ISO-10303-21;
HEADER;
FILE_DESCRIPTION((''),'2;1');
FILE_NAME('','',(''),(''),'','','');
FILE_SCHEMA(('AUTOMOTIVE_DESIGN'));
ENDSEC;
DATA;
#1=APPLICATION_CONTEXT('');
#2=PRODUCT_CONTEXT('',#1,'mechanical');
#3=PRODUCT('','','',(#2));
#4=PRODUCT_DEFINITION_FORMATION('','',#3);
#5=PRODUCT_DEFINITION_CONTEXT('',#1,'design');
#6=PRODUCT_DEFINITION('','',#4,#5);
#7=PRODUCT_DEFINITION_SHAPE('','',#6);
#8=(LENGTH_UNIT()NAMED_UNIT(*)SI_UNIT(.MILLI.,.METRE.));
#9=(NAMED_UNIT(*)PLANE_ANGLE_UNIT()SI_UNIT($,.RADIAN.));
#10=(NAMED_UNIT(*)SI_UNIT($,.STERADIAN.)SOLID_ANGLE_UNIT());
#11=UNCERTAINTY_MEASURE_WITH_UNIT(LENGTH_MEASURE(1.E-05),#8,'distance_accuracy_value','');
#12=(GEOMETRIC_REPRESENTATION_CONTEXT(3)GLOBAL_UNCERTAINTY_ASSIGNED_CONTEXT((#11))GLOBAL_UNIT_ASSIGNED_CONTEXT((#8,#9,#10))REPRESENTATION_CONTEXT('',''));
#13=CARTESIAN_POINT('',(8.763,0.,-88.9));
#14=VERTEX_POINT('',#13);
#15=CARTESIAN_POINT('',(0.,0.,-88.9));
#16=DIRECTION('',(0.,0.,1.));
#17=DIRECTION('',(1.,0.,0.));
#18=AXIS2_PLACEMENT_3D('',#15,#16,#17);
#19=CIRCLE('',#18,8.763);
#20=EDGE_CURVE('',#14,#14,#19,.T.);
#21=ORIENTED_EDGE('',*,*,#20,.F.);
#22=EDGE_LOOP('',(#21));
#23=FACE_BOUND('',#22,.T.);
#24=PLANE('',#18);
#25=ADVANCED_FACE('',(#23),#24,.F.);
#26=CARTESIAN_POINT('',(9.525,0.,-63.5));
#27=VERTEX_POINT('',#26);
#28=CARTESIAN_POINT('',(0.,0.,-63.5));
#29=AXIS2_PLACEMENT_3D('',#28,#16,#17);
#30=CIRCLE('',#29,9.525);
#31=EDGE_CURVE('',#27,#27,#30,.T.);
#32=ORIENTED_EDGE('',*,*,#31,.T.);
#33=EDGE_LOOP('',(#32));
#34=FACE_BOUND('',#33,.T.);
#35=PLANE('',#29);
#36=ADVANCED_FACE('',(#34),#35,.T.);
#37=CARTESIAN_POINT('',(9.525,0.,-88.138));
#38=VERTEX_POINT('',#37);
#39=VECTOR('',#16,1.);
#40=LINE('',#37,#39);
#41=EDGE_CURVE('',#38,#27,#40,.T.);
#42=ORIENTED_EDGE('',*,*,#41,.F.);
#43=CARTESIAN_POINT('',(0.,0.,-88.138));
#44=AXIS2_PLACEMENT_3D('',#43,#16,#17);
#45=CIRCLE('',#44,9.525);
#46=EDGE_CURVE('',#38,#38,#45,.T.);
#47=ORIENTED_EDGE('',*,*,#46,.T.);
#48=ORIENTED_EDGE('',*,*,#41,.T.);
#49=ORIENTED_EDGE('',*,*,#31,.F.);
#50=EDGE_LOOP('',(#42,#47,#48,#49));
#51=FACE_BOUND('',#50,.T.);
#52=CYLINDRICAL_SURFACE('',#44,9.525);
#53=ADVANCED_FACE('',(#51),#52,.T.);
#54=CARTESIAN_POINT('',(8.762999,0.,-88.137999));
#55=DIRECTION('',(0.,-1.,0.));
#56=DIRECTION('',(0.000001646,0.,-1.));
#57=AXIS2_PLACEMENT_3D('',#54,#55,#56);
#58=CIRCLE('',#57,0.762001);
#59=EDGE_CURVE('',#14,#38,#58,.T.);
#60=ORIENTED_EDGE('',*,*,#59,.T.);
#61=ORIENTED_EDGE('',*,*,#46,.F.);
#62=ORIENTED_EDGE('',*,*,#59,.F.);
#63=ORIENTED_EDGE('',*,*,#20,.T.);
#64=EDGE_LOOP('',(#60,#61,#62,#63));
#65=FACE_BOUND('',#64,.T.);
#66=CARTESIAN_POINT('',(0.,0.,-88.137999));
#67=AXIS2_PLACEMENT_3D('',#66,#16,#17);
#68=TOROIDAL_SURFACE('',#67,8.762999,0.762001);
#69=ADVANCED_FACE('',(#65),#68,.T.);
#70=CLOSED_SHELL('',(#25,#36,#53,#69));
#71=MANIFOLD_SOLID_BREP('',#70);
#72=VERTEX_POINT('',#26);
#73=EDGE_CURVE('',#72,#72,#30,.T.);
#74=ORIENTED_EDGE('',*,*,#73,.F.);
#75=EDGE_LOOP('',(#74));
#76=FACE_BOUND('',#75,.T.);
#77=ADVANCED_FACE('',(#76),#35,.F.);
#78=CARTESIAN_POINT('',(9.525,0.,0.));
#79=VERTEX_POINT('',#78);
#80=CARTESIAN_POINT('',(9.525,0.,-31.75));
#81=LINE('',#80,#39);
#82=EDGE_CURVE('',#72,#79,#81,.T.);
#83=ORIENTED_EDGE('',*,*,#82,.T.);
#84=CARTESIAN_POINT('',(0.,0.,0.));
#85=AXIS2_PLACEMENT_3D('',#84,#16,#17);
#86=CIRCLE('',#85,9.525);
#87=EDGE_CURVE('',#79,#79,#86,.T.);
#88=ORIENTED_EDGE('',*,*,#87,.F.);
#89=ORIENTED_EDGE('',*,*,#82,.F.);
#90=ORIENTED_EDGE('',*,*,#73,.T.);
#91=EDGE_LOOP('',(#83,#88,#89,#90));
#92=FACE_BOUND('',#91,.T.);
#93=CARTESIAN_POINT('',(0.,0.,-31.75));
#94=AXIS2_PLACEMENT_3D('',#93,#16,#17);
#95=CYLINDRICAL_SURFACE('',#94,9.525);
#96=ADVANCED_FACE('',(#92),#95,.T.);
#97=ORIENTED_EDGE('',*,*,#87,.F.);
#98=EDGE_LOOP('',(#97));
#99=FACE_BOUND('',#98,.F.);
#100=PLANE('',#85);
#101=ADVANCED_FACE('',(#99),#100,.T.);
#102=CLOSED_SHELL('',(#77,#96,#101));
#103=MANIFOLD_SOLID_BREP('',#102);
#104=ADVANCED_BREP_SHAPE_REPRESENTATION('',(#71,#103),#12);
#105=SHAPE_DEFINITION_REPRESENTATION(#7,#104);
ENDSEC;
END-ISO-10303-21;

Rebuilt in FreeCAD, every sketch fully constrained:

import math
import FreeCAD as App
import Part
import Sketcher
Q = App.Units.Quantity


def add_polygon(sketch, points):
    """Adds a closed chain of lines whose ends are joined by coincident constraints."""
    first, n = sketch.GeometryCount, len(points)
    for a, b in zip(points, points[1:] + points[:1]):
        sketch.addGeometry(Part.LineSegment(App.Vector(*a, 0), App.Vector(*b, 0)), False)
    for i in range(n):
        sketch.addConstraint(Sketcher.Constraint("Coincident", first + i, 2, first + (i + 1) % n, 1))

doc = App.newDocument("Part")
body = doc.addObject("PartDesign::Body", "Body")

sketch1 = body.newObject("Sketcher::SketchObject", "Sketch")
sketch1.AttachmentSupport = (doc.getObject("XZ_Plane"), [""])
sketch1.MapMode = "FlatFace"
add_polygon(sketch1, [(0, 0), (0, -63.5), (9.525, -63.5), (9.525, 0)])
sketch1.addConstraint(Sketcher.Constraint("Vertical", 0))
sketch1.addConstraint(Sketcher.Constraint("Horizontal", 1))
sketch1.addConstraint(Sketcher.Constraint("Vertical", 2))
sketch1.addConstraint(Sketcher.Constraint("Horizontal", 3))
sketch1.addConstraint(Sketcher.Constraint("Coincident", 3, 2, -1, 1))
sketch1.addConstraint(Sketcher.Constraint("DistanceY", 0, 2, 0, 1, Q("2.5 in")))
sketch1.addConstraint(Sketcher.Constraint("DistanceX", 1, 1, 1, 2, Q("0.375 in")))
revolution = body.newObject("PartDesign::Revolution", "Revolution")
revolution.Profile = sketch1
revolution.ReferenceAxis = (sketch1, ["V_Axis"])
revolution.Angle = 360
body2 = doc.addObject("PartDesign::Body", "Body001")

sketch2 = body2.newObject("Sketcher::SketchObject", "Sketch001")
sketch2.AttachmentSupport = (doc.getObject("XZ_Plane001"), [""])
sketch2.MapMode = "FlatFace"
sketch2.addGeometry(Part.LineSegment(App.Vector(9.525, -63.5, 0), App.Vector(0, -63.5, 0)), False)
sketch2.addGeometry(Part.LineSegment(App.Vector(0, -63.5, 0), App.Vector(0, -88.9, 0)), False)
sketch2.addGeometry(Part.LineSegment(App.Vector(0, -88.9, 0), App.Vector(8.763, -88.9, 0)), False)
sketch2.addGeometry(Part.ArcOfCircle(Part.Circle(App.Vector(8.762999, -88.137999, 0), App.Vector(0, 0, 1), 0.762001), math.radians(-89.999906), math.radians(-0.000094)), False)
sketch2.addGeometry(Part.LineSegment(App.Vector(9.525, -88.138, 0), App.Vector(9.525, -63.5, 0)), False)
sketch2.addConstraint(Sketcher.Constraint("Coincident", 0, 2, 1, 1))
sketch2.addConstraint(Sketcher.Constraint("Coincident", 1, 2, 2, 1))
sketch2.addConstraint(Sketcher.Constraint("Tangent", 2, 2, 3, 1))
sketch2.addConstraint(Sketcher.Constraint("Tangent", 3, 2, 4, 1))
sketch2.addConstraint(Sketcher.Constraint("Coincident", 4, 2, 0, 1))
sketch2.addConstraint(Sketcher.Constraint("Horizontal", 0))
sketch2.addConstraint(Sketcher.Constraint("Vertical", 1))
sketch2.addConstraint(Sketcher.Constraint("Horizontal", 2))
sketch2.addConstraint(Sketcher.Constraint("Vertical", 4))
sketch2.addConstraint(Sketcher.Constraint("PointOnObject", 0, 2, -2))
sketch2.addConstraint(Sketcher.Constraint("DistanceY", 1, 2, 1, 1, Q("1 in")))
sketch2.addConstraint(Sketcher.Constraint("Radius", 3, Q("0.03 in")))
sketch2.addConstraint(Sketcher.Constraint("DistanceY", 0, 2, -1, 1, Q("2.5 in")))
sketch2.addConstraint(Sketcher.Constraint("DistanceX", 0, 2, 0, 1, Q("0.375 in")))
revolution2 = body2.newObject("PartDesign::Revolution", "Revolution001")
revolution2.Profile = sketch2
revolution2.ReferenceAxis = (sketch2, ["V_Axis"])
revolution2.Angle = 360

doc.recompute()
